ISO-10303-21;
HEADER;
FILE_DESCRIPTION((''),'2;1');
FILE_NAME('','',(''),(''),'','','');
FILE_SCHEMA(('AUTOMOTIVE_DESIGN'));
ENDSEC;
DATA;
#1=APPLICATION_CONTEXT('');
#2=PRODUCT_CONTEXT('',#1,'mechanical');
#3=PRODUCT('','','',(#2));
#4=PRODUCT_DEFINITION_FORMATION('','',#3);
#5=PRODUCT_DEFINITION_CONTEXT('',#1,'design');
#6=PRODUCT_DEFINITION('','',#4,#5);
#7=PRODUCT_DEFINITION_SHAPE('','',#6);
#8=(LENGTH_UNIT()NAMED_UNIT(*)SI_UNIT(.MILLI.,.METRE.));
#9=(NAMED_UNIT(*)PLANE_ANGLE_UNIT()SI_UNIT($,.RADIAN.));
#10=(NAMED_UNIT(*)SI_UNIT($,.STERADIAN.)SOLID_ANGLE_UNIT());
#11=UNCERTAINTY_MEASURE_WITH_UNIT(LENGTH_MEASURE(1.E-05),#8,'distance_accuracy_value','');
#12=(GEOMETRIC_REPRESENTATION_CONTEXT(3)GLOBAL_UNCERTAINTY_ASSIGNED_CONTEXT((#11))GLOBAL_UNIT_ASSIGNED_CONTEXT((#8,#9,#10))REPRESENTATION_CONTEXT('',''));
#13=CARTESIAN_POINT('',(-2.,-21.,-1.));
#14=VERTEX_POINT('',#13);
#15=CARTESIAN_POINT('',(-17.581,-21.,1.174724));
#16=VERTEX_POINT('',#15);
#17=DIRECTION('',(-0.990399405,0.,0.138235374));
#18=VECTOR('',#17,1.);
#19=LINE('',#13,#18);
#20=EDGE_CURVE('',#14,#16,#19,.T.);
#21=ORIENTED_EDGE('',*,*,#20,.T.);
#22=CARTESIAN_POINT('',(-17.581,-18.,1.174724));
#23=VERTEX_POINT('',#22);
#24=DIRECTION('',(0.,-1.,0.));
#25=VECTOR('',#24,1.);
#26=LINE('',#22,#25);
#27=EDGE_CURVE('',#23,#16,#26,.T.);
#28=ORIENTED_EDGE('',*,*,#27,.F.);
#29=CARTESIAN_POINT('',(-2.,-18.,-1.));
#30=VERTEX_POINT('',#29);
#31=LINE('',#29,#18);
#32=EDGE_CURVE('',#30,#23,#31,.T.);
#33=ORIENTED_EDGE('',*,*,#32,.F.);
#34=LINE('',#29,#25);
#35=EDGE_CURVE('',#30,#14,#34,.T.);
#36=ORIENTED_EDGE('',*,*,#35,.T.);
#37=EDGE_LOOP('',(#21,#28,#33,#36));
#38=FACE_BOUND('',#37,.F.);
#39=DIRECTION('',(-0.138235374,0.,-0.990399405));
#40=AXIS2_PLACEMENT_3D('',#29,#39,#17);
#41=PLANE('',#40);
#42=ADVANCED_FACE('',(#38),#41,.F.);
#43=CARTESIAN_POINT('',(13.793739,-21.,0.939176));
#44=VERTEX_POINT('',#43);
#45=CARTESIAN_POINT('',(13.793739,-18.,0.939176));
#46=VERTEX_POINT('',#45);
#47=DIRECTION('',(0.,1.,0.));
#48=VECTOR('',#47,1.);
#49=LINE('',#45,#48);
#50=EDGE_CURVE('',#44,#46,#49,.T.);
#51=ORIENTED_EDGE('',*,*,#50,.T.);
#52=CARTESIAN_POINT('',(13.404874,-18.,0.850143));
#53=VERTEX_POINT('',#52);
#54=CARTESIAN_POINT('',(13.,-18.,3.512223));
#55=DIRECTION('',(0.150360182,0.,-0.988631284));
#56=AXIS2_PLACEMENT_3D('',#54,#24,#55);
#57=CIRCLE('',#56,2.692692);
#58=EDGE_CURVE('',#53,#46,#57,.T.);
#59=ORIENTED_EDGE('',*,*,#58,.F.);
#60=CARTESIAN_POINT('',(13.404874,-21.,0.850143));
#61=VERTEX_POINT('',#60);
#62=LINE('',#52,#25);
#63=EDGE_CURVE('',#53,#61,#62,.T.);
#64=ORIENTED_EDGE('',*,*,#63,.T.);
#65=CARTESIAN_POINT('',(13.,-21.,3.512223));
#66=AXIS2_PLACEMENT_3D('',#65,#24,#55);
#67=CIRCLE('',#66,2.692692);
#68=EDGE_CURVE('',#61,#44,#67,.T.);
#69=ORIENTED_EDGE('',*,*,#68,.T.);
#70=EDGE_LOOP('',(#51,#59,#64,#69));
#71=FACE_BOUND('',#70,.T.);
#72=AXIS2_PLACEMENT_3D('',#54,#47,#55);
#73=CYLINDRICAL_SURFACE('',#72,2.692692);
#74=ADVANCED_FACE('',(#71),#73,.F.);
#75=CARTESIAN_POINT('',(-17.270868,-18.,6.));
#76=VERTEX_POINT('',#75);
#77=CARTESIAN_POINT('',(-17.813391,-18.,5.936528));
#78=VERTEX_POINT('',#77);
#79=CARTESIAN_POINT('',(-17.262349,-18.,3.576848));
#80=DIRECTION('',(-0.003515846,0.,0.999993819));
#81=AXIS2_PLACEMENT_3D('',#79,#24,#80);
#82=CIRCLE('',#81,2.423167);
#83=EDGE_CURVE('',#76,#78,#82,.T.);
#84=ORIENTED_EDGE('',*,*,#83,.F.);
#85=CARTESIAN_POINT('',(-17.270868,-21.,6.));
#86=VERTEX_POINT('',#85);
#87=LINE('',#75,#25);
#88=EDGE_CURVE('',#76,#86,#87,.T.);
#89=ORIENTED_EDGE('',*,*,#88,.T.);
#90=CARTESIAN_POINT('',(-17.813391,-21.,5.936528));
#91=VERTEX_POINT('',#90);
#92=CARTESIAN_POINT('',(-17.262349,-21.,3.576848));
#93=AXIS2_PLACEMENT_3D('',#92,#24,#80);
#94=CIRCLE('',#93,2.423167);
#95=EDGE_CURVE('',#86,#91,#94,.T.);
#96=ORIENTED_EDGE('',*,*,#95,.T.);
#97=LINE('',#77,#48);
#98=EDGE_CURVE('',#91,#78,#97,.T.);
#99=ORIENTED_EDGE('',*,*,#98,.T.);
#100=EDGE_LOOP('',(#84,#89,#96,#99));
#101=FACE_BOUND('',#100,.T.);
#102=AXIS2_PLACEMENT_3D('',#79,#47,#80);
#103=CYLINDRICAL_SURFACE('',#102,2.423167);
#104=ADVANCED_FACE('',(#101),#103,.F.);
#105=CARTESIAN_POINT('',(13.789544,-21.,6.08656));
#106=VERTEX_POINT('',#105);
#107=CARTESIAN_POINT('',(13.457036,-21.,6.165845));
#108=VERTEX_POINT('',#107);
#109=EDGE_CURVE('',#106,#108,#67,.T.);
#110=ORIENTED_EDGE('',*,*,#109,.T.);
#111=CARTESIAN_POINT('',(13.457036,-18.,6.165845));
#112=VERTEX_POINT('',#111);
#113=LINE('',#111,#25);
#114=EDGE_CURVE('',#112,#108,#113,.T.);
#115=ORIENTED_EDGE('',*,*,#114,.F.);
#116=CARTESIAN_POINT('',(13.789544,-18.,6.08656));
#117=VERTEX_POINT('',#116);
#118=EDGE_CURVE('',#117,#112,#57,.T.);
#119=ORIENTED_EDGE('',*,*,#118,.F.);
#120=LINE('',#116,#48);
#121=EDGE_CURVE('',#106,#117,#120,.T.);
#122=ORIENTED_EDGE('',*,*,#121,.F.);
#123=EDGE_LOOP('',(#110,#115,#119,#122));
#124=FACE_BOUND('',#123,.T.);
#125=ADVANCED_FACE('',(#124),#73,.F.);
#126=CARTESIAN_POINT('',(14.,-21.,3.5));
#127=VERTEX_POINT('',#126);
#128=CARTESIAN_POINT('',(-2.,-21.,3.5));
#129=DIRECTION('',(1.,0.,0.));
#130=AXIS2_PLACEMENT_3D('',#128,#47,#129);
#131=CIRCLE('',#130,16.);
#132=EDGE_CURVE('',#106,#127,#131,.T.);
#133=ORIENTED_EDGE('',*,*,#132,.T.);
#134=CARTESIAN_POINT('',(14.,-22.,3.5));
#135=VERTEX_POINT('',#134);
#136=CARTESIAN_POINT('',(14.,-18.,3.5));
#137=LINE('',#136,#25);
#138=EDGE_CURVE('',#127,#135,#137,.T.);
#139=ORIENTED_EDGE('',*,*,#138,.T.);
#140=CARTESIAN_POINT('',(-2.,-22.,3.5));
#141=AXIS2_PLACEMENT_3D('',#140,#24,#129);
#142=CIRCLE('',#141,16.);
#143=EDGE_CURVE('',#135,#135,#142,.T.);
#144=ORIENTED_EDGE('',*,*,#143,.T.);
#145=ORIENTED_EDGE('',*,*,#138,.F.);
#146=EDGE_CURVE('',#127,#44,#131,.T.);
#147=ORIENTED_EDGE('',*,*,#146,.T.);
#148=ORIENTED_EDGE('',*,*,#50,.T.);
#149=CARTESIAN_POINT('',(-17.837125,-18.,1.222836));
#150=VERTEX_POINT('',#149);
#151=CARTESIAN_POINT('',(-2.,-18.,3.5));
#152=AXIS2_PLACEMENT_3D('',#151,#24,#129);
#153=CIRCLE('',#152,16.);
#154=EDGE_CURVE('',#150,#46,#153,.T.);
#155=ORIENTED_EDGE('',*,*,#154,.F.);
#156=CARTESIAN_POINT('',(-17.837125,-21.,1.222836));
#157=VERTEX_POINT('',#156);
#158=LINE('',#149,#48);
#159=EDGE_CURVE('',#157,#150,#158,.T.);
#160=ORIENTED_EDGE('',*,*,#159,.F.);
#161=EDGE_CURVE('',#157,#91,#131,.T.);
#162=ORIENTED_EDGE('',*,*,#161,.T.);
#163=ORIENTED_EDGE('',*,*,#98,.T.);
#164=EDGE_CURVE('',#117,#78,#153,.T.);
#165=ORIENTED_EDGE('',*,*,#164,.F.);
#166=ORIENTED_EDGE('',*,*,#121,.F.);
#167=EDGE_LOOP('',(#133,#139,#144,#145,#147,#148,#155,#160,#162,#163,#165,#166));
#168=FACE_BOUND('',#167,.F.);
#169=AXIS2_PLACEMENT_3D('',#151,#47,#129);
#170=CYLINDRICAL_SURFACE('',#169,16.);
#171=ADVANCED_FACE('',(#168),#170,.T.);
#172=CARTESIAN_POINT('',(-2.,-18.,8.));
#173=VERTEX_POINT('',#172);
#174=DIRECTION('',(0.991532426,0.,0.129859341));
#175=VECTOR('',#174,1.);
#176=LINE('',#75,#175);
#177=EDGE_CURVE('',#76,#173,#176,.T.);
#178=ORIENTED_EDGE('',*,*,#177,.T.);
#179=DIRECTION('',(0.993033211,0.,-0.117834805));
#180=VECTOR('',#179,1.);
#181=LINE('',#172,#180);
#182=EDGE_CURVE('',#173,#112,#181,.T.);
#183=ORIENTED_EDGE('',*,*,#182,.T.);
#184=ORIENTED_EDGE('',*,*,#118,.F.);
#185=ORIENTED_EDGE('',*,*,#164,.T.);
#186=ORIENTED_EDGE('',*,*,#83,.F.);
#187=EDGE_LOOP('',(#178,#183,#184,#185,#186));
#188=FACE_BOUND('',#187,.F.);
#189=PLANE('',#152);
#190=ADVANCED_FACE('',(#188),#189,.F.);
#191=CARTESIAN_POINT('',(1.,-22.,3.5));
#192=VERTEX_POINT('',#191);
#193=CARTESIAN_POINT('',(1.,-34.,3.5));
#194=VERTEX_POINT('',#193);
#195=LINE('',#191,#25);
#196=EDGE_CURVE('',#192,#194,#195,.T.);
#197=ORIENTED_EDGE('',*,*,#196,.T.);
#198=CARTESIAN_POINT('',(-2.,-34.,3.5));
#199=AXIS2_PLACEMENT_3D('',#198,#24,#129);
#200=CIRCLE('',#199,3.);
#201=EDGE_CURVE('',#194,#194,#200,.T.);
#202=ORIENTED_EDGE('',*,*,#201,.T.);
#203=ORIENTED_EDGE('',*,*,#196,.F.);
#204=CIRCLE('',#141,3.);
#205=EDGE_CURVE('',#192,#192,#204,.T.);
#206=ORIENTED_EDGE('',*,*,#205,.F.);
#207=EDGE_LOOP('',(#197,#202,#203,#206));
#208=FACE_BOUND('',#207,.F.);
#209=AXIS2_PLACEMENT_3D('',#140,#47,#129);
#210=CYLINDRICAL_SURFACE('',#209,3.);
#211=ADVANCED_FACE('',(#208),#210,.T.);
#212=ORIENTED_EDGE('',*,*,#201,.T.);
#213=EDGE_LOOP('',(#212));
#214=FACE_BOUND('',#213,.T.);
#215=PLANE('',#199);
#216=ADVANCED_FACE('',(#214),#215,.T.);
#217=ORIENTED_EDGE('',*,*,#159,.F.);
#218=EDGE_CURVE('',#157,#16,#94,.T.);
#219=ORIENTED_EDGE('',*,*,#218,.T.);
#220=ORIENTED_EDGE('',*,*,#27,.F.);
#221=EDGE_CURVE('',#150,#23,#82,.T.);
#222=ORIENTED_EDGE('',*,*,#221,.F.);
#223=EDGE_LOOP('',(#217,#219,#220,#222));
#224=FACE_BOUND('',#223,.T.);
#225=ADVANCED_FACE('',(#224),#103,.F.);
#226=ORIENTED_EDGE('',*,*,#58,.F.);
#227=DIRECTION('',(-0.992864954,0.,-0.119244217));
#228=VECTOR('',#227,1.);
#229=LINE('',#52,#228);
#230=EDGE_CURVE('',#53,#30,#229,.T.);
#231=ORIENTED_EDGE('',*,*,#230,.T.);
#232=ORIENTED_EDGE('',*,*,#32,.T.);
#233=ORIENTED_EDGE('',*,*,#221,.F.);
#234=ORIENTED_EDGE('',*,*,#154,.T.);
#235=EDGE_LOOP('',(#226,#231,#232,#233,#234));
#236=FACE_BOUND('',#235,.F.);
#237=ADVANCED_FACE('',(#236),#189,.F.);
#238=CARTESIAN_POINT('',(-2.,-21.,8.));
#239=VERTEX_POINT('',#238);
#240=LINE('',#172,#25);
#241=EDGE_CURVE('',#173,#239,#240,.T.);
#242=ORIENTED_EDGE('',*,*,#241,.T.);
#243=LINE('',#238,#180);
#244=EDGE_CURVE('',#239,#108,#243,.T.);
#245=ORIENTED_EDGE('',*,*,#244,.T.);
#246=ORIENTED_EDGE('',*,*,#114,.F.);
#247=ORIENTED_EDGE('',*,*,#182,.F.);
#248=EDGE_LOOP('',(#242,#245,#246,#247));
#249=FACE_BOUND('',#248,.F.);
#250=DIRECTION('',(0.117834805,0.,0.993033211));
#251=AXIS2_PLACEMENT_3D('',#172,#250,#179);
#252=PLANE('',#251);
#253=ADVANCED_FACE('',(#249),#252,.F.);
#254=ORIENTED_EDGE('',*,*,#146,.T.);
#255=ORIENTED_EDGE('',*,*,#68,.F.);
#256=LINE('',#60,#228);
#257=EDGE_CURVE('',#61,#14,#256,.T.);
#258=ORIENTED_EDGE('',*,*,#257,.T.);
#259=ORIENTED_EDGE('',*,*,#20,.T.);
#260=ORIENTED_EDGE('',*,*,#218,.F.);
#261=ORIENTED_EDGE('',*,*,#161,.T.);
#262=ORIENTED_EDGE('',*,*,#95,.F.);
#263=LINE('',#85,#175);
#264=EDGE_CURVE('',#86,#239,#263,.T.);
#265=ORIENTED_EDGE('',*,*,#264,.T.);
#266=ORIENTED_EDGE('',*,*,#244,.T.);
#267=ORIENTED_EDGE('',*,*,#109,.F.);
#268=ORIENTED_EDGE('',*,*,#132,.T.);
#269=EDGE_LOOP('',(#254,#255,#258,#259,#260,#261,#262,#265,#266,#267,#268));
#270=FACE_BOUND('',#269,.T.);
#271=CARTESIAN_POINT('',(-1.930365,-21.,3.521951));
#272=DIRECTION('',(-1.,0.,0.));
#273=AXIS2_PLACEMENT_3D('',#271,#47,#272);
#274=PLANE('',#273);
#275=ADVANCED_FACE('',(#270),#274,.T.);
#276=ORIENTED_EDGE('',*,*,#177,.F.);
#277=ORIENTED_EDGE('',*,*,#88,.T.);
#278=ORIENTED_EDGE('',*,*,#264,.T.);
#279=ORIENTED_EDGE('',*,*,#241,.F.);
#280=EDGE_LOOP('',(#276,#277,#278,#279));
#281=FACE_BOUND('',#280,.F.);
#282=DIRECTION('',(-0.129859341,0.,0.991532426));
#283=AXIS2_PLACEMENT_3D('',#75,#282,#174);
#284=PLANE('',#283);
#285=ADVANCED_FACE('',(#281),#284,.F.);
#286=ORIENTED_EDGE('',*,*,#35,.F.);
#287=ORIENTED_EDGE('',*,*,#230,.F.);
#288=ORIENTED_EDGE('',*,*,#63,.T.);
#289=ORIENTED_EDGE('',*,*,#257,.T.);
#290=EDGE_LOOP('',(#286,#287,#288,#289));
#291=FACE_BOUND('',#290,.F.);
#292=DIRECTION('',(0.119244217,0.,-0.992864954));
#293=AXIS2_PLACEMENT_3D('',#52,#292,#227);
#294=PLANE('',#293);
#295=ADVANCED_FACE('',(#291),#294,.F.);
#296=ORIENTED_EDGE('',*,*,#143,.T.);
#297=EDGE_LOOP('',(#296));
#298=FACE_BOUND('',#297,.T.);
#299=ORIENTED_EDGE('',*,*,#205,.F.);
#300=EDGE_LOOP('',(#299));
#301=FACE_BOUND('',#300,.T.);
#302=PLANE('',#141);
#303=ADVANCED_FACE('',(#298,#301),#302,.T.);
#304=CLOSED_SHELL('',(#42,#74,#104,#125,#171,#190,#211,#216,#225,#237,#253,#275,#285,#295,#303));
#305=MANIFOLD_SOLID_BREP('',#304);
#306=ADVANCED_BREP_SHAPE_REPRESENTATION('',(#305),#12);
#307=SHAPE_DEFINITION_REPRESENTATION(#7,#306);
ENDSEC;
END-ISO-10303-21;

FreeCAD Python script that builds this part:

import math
import FreeCAD as App
import Part
import Sketcher
Q = App.Units.Quantity

doc = App.newDocument("Part")
body = doc.addObject("PartDesign::Body", "Body")

# Sketch on XY plane
sketch1 = body.newObject("Sketcher::SketchObject", "Sketch")
sketch1.AttachmentSupport = (doc.getObject("XY_Plane"), [""])
sketch1.MapMode = "FlatFace"
sketch1.addGeometry(Part.Circle(App.Vector(0, 0, 0), App.Vector(0, 0, 1), 3), False)
sketch1.addConstraint([
    Sketcher.Constraint("Coincident", 0, 3, -1, 1),
    Sketcher.Constraint("Diameter", 0, Q("6 mm")),
])
pad1 = body.newObject("PartDesign::Pad", "Pad")
pad1.Profile = sketch1
pad1.Length = 12
body2 = doc.addObject("PartDesign::Body", "Body001")
doc.recompute()

body.Placement = App.Placement(App.Vector(0, 0, 0), App.Rotation(App.Vector(1, 0, 0), 90))
boolean = body2.newObject("PartDesign::Boolean", "Boolean")
boolean.Type = "Fuse"
boolean.addObjects([body])
body3 = doc.addObject("PartDesign::Body", "Body002")
doc.recompute()

body2.Placement = App.Placement(App.Vector(-2, -22, 3.5), App.Rotation(App.Vector(0, 0, 1), 0))
boolean2 = body3.newObject("PartDesign::Boolean", "Boolean001")
boolean2.Type = "Fuse"
boolean2.addObjects([body2])
body4 = doc.addObject("PartDesign::Body", "Body003")

# Sketch on XZ plane
sketch2 = body4.newObject("Sketcher::SketchObject", "Sketch001")
sketch2.AttachmentSupport = (doc.getObject("XZ_Plane003"), [""])
sketch2.MapMode = "FlatFace"
sketch2.AttachmentOffset = App.Placement(App.Vector(0, 0, 18), App.Rotation())
sketch2.addGeometry([
    Part.LineSegment(App.Vector(-2, 8, 0), App.Vector(-17.3, 6, 0)),  # 0
    Part.ArcOfCircle(Part.Circle(App.Vector(-17.3, 3.6, 0), App.Vector(0, 0, 1), 2.4), math.radians(90), math.radians(262)),  # 1
    Part.LineSegment(App.Vector(-17.6, 1.2, 0), App.Vector(-2, -1, 0)),  # 2
    Part.LineSegment(App.Vector(-2, -1, 0), App.Vector(13.4, 0.9, 0)),  # 3
    Part.ArcOfCircle(Part.Circle(App.Vector(13, 3.5, 0), App.Vector(0, 0, 1), 2.7), math.radians(-81), math.radians(80)),  # 4
    Part.LineSegment(App.Vector(13.5, 6.2, 0), App.Vector(-2, 8, 0)),  # 5
], False)
sketch2.addConstraint([
    Sketcher.Constraint("Coincident", 0, 2, 1, 1),
    Sketcher.Constraint("Coincident", 1, 2, 2, 1),
    Sketcher.Constraint("Coincident", 2, 2, 3, 1),
    Sketcher.Constraint("Coincident", 3, 2, 4, 1),
    Sketcher.Constraint("Coincident", 4, 2, 5, 1),
    Sketcher.Constraint("Coincident", 5, 2, 0, 1),
    Sketcher.Constraint("Vertical", 2, 2, 5, 2),
    Sketcher.Constraint("DistanceX", -1, 1, 4, 3, Q("13 mm")),
    Sketcher.Constraint("DistanceY", -1, 1, 0, 2, Q("6 mm")),
    Sketcher.Constraint("DistanceX", 2, 2, -1, 1, Q("2 mm")),
    Sketcher.Constraint("DistanceY", 2, 2, -1, 1, Q("1 mm")),
    Sketcher.Constraint("DistanceY", -1, 1, 5, 2, Q("8 mm")),
    Sketcher.Constraint("DistanceX", 1, 2, -1, 1, Q("17.581 mm")),
    Sketcher.Constraint("Radius", 1, Q("2.423167 mm")),
    Sketcher.Constraint("Radius", 4, Q("2.692692 mm")),
    Sketcher.Constraint("DistanceY", 1, 2, 4, 3, Q("2.337499 mm")),
    Sketcher.Constraint("Distance", 0, Q("15.401279 mm")),
    Sketcher.Constraint("Distance", 3, Q("15.515578 mm")),
    Sketcher.Constraint("DistanceX", 1, 3, -1, 1, Q("17.262349 mm")),
    Sketcher.Constraint("Distance", 5, Q("15.565477 mm")),
])
pad2 = body4.newObject("PartDesign::Pad", "Pad001")
pad2.Profile = sketch2
pad2.Length = 3
body5 = doc.addObject("PartDesign::Body", "Body004")

# Sketch on XY plane
sketch3 = body5.newObject("Sketcher::SketchObject", "Sketch002")
sketch3.AttachmentSupport = (doc.getObject("XY_Plane004"), [""])
sketch3.MapMode = "FlatFace"
sketch3.addGeometry(Part.Circle(App.Vector(0, 0, 0), App.Vector(0, 0, 1), 16), False)
sketch3.addConstraint([
    Sketcher.Constraint("Coincident", 0, 3, -1, 1),
    Sketcher.Constraint("Diameter", 0, Q("32 mm")),
])
pad3 = body5.newObject("PartDesign::Pad", "Pad002")
pad3.Profile = sketch3
pad3.Length = 4
body6 = doc.addObject("PartDesign::Body", "Body005")
doc.recompute()

body5.Placement = App.Placement(App.Vector(0, 0, 0), App.Rotation(App.Vector(1, 0, 0), 90))
boolean3 = body6.newObject("PartDesign::Boolean", "Boolean002")
boolean3.Type = "Fuse"
boolean3.addObjects([body5])
body7 = doc.addObject("PartDesign::Body", "Body006")
doc.recompute()

body6.Placement = App.Placement(App.Vector(-2, -18, 3.5), App.Rotation(App.Vector(0, 0, 1), 0))
boolean4 = body7.newObject("PartDesign::Boolean", "Boolean003")
boolean4.Type = "Fuse"
boolean4.addObjects([body6])
doc.recompute()

boolean5 = body7.newObject("PartDesign::Boolean", "Boolean004")
boolean5.Type = "Cut"
boolean5.addObjects([body4])
doc.recompute()

boolean6 = body7.newObject("PartDesign::Boolean", "Boolean005")
boolean6.Type = "Fuse"
boolean6.addObjects([body3])

doc.recompute()
